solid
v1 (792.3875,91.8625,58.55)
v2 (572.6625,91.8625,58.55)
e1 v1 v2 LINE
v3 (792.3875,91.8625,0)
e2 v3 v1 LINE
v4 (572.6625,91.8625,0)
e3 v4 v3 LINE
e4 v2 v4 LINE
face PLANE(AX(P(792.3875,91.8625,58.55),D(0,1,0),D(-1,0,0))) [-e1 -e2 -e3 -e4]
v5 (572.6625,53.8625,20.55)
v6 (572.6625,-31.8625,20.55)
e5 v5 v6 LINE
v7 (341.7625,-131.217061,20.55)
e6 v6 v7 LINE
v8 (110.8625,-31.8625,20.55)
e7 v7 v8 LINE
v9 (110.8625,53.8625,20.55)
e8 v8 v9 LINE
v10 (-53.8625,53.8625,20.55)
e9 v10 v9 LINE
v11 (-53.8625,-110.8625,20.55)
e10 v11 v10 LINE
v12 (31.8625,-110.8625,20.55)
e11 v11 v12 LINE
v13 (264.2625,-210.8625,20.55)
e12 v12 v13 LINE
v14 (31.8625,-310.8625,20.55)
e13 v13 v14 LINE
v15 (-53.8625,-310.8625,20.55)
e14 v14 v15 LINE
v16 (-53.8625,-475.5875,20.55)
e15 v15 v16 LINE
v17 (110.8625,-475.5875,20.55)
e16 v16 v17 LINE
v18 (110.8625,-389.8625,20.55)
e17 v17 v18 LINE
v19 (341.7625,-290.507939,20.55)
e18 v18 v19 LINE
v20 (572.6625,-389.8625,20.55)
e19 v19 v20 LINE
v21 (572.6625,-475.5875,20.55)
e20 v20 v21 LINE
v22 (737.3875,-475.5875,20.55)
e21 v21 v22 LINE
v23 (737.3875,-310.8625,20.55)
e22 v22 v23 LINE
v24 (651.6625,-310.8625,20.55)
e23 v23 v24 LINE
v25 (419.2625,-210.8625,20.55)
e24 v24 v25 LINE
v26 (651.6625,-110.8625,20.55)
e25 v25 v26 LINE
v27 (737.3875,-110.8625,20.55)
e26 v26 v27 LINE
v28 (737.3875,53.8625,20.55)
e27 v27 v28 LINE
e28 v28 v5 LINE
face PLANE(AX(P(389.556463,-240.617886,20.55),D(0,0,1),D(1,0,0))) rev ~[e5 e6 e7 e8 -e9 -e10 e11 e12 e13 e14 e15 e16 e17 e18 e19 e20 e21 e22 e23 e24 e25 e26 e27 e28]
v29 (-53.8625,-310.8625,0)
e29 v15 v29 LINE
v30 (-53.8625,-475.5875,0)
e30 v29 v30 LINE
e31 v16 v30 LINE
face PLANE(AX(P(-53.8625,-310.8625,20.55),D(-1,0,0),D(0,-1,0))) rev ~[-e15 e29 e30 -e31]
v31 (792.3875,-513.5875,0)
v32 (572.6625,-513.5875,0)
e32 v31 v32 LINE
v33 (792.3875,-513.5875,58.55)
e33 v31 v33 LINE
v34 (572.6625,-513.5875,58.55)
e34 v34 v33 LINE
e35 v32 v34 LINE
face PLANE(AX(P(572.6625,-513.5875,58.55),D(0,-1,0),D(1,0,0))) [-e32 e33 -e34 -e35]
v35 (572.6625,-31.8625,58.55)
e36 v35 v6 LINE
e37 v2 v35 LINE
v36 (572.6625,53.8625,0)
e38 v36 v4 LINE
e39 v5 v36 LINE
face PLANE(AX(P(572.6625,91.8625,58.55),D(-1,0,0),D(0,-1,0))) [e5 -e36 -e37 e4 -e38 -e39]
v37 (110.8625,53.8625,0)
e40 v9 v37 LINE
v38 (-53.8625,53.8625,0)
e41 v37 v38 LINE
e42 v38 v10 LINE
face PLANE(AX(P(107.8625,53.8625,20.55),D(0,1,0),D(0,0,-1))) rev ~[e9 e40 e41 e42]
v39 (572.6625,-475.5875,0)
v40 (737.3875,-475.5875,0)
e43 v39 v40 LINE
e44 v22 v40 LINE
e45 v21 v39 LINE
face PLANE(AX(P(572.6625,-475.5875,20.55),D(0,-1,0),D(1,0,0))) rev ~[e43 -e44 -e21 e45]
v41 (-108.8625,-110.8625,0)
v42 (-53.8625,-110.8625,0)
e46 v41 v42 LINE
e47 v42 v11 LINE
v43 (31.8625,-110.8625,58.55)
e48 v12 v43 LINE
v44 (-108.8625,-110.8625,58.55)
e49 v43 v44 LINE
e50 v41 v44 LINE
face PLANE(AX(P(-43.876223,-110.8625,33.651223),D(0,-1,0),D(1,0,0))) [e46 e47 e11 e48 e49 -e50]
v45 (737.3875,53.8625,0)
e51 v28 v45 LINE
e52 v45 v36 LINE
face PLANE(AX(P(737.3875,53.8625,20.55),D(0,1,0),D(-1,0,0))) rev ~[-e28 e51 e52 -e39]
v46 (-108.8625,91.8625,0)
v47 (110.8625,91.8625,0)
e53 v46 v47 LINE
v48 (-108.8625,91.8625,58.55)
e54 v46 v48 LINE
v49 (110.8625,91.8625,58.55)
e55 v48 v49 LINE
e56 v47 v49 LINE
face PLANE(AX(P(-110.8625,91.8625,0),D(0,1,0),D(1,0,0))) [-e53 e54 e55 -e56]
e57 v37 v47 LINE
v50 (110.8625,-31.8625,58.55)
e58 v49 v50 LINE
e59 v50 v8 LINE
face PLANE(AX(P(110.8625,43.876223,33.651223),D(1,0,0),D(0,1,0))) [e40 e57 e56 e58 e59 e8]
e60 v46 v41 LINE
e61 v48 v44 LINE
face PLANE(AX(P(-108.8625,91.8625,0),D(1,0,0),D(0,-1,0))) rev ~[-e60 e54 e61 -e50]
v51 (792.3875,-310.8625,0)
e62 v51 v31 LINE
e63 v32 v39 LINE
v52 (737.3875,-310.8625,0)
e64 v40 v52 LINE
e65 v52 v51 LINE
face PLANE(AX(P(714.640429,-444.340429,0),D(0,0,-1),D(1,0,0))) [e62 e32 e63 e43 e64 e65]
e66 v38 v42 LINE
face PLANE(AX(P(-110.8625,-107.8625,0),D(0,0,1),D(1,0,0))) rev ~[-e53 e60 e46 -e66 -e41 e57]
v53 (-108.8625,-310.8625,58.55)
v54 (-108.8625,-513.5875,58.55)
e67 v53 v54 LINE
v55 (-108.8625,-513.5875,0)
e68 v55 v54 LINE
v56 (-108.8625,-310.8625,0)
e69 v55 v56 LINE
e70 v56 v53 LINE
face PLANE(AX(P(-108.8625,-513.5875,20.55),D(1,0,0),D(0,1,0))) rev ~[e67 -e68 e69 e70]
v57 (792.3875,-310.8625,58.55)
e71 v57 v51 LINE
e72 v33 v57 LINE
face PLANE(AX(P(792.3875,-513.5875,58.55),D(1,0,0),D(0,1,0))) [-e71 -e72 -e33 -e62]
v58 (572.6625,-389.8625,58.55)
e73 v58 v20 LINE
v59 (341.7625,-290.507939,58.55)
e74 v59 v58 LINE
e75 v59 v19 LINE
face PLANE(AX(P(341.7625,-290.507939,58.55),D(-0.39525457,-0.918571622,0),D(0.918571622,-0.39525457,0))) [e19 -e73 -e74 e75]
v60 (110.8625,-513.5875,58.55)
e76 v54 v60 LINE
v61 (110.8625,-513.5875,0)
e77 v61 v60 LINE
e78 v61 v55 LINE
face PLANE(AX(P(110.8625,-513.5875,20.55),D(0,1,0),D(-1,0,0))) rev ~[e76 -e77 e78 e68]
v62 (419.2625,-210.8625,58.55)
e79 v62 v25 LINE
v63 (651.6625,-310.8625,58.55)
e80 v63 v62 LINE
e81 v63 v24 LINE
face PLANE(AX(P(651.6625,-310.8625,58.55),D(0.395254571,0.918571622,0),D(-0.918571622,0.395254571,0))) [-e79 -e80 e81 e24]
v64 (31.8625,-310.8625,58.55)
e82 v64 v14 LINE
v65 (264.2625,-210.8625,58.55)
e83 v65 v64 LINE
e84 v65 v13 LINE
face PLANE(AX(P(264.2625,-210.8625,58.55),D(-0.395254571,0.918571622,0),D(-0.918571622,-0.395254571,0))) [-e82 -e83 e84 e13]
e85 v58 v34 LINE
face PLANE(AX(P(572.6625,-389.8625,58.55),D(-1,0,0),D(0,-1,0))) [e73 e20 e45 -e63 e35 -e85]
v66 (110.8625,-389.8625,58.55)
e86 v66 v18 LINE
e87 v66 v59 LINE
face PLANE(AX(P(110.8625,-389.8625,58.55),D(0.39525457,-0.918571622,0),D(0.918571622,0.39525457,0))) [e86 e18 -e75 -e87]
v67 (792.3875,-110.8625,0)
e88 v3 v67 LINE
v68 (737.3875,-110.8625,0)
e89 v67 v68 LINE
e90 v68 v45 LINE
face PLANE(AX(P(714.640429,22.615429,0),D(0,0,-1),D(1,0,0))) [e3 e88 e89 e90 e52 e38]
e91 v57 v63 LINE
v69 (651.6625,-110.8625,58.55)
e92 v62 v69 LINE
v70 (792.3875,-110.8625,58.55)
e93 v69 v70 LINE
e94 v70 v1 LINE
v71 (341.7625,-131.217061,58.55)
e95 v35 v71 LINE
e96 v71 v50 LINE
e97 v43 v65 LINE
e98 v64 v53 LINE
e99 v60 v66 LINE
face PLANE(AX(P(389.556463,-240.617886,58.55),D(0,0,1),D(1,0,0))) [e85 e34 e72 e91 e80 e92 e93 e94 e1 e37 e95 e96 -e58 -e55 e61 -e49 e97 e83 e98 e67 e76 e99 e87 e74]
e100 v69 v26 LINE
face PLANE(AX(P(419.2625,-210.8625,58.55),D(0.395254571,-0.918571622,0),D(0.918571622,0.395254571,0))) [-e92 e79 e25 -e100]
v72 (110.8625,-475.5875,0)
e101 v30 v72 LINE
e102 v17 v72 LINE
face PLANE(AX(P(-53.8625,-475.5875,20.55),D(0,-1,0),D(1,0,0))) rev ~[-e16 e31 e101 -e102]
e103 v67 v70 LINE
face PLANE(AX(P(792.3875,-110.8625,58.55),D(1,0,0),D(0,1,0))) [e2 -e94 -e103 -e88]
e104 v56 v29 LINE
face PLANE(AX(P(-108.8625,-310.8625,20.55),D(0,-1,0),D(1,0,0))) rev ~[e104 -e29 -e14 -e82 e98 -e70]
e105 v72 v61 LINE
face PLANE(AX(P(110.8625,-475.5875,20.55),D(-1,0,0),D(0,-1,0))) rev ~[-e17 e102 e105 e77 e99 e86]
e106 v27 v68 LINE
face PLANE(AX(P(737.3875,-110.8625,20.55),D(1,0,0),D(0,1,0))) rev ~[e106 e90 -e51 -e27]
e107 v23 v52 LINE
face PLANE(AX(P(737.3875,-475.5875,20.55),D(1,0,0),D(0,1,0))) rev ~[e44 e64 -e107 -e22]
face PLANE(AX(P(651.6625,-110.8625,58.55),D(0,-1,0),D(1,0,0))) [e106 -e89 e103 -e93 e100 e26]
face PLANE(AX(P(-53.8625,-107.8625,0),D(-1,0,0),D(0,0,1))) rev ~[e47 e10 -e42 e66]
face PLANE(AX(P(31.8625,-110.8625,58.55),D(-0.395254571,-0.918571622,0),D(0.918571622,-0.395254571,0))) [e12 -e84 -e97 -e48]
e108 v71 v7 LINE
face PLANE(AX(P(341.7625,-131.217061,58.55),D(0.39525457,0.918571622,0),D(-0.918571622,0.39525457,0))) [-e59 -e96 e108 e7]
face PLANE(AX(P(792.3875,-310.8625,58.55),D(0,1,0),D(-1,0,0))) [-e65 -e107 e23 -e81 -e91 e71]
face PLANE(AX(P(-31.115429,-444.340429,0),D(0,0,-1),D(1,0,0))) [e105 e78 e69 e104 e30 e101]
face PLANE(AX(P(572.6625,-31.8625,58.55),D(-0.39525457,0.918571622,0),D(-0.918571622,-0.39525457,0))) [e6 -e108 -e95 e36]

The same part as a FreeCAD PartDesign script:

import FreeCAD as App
import Part
import Sketcher

doc = App.newDocument("Part")
body = doc.addObject("PartDesign::Body", "Body")

# Sketch on XY plane
sketch1 = doc.addObject("Sketcher::SketchObject", "Sketch")
body.addObject(sketch1)
sketch1.AttachmentSupport = (doc.XY_Plane, [""])
sketch1.MapMode = "FlatFace"
sketch1.addGeometry(Part.LineSegment(App.Vector(-54, 54, 0), App.Vector(108, 54, 0)), False)
sketch1.addGeometry(Part.LineSegment(App.Vector(108, 54, 0), App.Vector(108, 108, 0)), False)
sketch1.addGeometry(Part.LineSegment(App.Vector(108, 108, 0), App.Vector(-108, 108, 0)), False)
sketch1.addGeometry(Part.LineSegment(App.Vector(-108, 108, 0), App.Vector(-108, -108, 0)), False)
sketch1.addGeometry(Part.LineSegment(App.Vector(-108, -108, 0), App.Vector(-54, -108, 0)), False)
sketch1.addGeometry(Part.LineSegment(App.Vector(-54, -108, 0), App.Vector(-54, 54, 0)), False)
sketch1.addConstraint(Sketcher.Constraint("Coincident", 0, 2, 1, 1))
sketch1.addConstraint(Sketcher.Constraint("Coincident", 1, 2, 2, 1))
sketch1.addConstraint(Sketcher.Constraint("Coincident", 2, 2, 3, 1))
sketch1.addConstraint(Sketcher.Constraint("Coincident", 3, 2, 4, 1))
sketch1.addConstraint(Sketcher.Constraint("Coincident", 4, 2, 5, 1))
sketch1.addConstraint(Sketcher.Constraint("Coincident", 5, 2, 0, 1))
sketch1.addConstraint(Sketcher.Constraint("Horizontal", 0))
sketch1.addConstraint(Sketcher.Constraint("Vertical", 1))
sketch1.addConstraint(Sketcher.Constraint("Horizontal", 2))
sketch1.addConstraint(Sketcher.Constraint("Vertical", 3))
sketch1.addConstraint(Sketcher.Constraint("Horizontal", 4))
sketch1.addConstraint(Sketcher.Constraint("Vertical", 5))
sketch1.addConstraint(Sketcher.Constraint("Symmetric", 1, 2, 3, 2, -1, 1))
sketch1.addConstraint(Sketcher.Constraint("Equal", 4, 1))
sketch1.addConstraint(Sketcher.Constraint("Equal", 2, 3))
sketch1.addConstraint(Sketcher.Constraint("DistanceX", 4, 1, 4, 2, 54.0))
sketch1.addConstraint(Sketcher.Constraint("DistanceX", 0, 1, 0, 2, 161.725))
pad1 = doc.addObject("PartDesign::Pad", "Pad")
body.addObject(pad1)
pad1.Profile = sketch1
pad1.Length = 20.55

# Sketch on XY plane
sketch2 = doc.addObject("Sketcher::SketchObject", "Sketch001")
body.addObject(sketch2)
sketch2.AttachmentSupport = (doc.XY_Plane, [""])
sketch2.MapMode = "FlatFace"
sketch2.AttachmentOffset = App.Placement(App.Vector(0, 0, 20.55), App.Rotation())
sketch2.addGeometry(Part.LineSegment(App.Vector(-108, 108, 0), App.Vector(-108, -108, 0)), False)
sketch2.addGeometry(Part.LineSegment(App.Vector(-108, -108, 0), App.Vector(108, -108, 0)), False)
sketch2.addGeometry(Part.LineSegment(App.Vector(108, -108, 0), App.Vector(108, 108, 0)), False)
sketch2.addGeometry(Part.LineSegment(App.Vector(108, 108, 0), App.Vector(-108, 108, 0)), False)
sketch2.addConstraint(Sketcher.Constraint("Coincident", 0, 2, 1, 1))
sketch2.addConstraint(Sketcher.Constraint("Coincident", 1, 2, 2, 1))
sketch2.addConstraint(Sketcher.Constraint("Coincident", 2, 2, 3, 1))
sketch2.addConstraint(Sketcher.Constraint("Coincident", 3, 2, 0, 1))
sketch2.addConstraint(Sketcher.Constraint("Vertical", 0))
sketch2.addConstraint(Sketcher.Constraint("Horizontal", 1))
sketch2.addConstraint(Sketcher.Constraint("Vertical", 2))
sketch2.addConstraint(Sketcher.Constraint("Horizontal", 3))
sketch2.addConstraint(Sketcher.Constraint("Symmetric", 0, 2, 2, 2, -1, 1))
sketch2.addConstraint(Sketcher.Constraint("Equal", 3, 0))
sketch2.addConstraint(Sketcher.Constraint("DistanceX", 1, 1, 1, 2, 215.725))
pad2 = doc.addObject("PartDesign::Pad", "Pad001")
body.addObject(pad2)
pad2.Profile = sketch2
pad2.Length = 38

# Sketch on XY plane
sketch3 = doc.addObject("Sketcher::SketchObject", "Sketch002")
body.addObject(sketch3)
sketch3.AttachmentSupport = (doc.XY_Plane, [""])
sketch3.MapMode = "FlatFace"
sketch3.AttachmentOffset = App.Placement(App.Vector(0, 0, 58.55), App.Rotation())
sketch3.addGeometry(Part.LineSegment(App.Vector(-110.9, -107.9, 0), App.Vector(-107.9, -107.9, 0)), False)
sketch3.addGeometry(Part.LineSegment(App.Vector(-107.9, -107.9, 0), App.Vector(-107.9, 107.9, 0)), False)
sketch3.addGeometry(Part.LineSegment(App.Vector(-107.9, 107.9, 0), App.Vector(107.9, 107.9, 0)), False)
sketch3.addGeometry(Part.LineSegment(App.Vector(107.9, 107.9, 0), App.Vector(107.9, 110.9, 0)), False)
sketch3.addGeometry(Part.LineSegment(App.Vector(107.9, 110.9, 0), App.Vector(-110.9, 110.9, 0)), False)
sketch3.addGeometry(Part.LineSegment(App.Vector(-110.9, 110.9, 0), App.Vector(-110.9, -107.9, 0)), False)
sketch3.addConstraint(Sketcher.Constraint("Coincident", 0, 2, 1, 1))
sketch3.addConstraint(Sketcher.Constraint("Coincident", 1, 2, 2, 1))
sketch3.addConstraint(Sketcher.Constraint("Coincident", 2, 2, 3, 1))
sketch3.addConstraint(Sketcher.Constraint("Coincident", 3, 2, 4, 1))
sketch3.addConstraint(Sketcher.Constraint("Coincident", 4, 2, 5, 1))
sketch3.addConstraint(Sketcher.Constraint("Coincident", 5, 2, 0, 1))
sketch3.addConstraint(Sketcher.Constraint("Horizontal", 0))
sketch3.addConstraint(Sketcher.Constraint("Vertical", 1))
sketch3.addConstraint(Sketcher.Constraint("Horizontal", 2))
sketch3.addConstraint(Sketcher.Constraint("Vertical", 3))
sketch3.addConstraint(Sketcher.Constraint("Horizontal", 4))
sketch3.addConstraint(Sketcher.Constraint("Vertical", 5))
sketch3.addConstraint(Sketcher.Constraint("Symmetric", 0, 2, 2, 2, -1, 1))
sketch3.addConstraint(Sketcher.Constraint("Equal", 2, 1))
sketch3.addConstraint(Sketcher.Constraint("Equal", 0, 3))
sketch3.addConstraint(Sketcher.Constraint("DistanceX", 0, 1, 0, 2, 3.0))
sketch3.addConstraint(Sketcher.Constraint("DistanceX", 2, 1, 2, 2, 215.725))
pad3 = doc.addObject("PartDesign::Pad", "Pad002")
body.addObject(pad3)
pad3.Profile = sketch3
pad3.Type = "UpToLast"
pad3.Reversed = True

# Sketch on XY plane
sketch4 = doc.addObject("Sketcher::SketchObject", "Sketch003")
body.addObject(sketch4)
sketch4.AttachmentSupport = (doc.XY_Plane, [""])
sketch4.MapMode = "FlatFace"
sketch4.AttachmentOffset = App.Placement(App.Vector(0, 0, 20.55), App.Rotation())
sketch4.addGeometry(Part.LineSegment(App.Vector(32, -108, 0), App.Vector(32, -32, 0)), False)
sketch4.addGeometry(Part.LineSegment(App.Vector(32, -32, 0), App.Vector(108, -32, 0)), False)
sketch4.addGeometry(Part.LineSegment(App.Vector(108, -32, 0), App.Vector(108, -108, 0)), False)
sketch4.addGeometry(Part.LineSegment(App.Vector(108, -108, 0), App.Vector(32, -108, 0)), False)
sketch4.addConstraint(Sketcher.Constraint("Coincident", 0, 2, 1, 1))
sketch4.addConstraint(Sketcher.Constraint("Coincident", 1, 2, 2, 1))
sketch4.addConstraint(Sketcher.Constraint("Coincident", 2, 2, 3, 1))
sketch4.addConstraint(Sketcher.Constraint("Coincident", 3, 2, 0, 1))
sketch4.addConstraint(Sketcher.Constraint("Vertical", 0))
sketch4.addConstraint(Sketcher.Constraint("Horizontal", 1))
sketch4.addConstraint(Sketcher.Constraint("Vertical", 2))
sketch4.addConstraint(Sketcher.Constraint("Horizontal", 3))
sketch4.addConstraint(Sketcher.Constraint("Equal", 3, 0))
sketch4.addConstraint(Sketcher.Constraint("DistanceX", 1, 1, 1, 2, 76.0))
sketch4.addConstraint(Sketcher.Constraint("DistanceX", -1, 1, 0, 2, 31.8625))
sketch4.addConstraint(Sketcher.Constraint("DistanceY", 0, 2, -1, 1, 31.8625))
pocket1 = doc.addObject("PartDesign::Pocket", "Pocket")
body.addObject(pocket1)
pocket1.Profile = sketch4
pocket1.Type = "ThroughAll"
pocket1.Reversed = True

# Sketch on YZ plane
sketch5 = doc.addObject("Sketcher::SketchObject", "Sketch004")
body.addObject(sketch5)
sketch5.AttachmentSupport = (doc.YZ_Plane, [""])
sketch5.MapMode = "FlatFace"
sketch5.AttachmentOffset = App.Placement(App.Vector(0, 0, 107.8625), App.Rotation())
sketch5.addGeometry(Part.LineSegment(App.Vector(111, 59, 0), App.Vector(-32, 59, 0)), False)
sketch5.addGeometry(Part.LineSegment(App.Vector(-32, 59, 0), App.Vector(-32, 21, 0)), False)
sketch5.addGeometry(Part.LineSegment(App.Vector(-32, 21, 0), App.Vector(54, 21, 0)), False)
sketch5.addGeometry(Part.LineSegment(App.Vector(54, 21, 0), App.Vector(54, 0, 0)), False)
sketch5.addGeometry(Part.LineSegment(App.Vector(54, 0, 0), App.Vector(111, 0, 0)), False)
sketch5.addGeometry(Part.LineSegment(App.Vector(111, 0, 0), App.Vector(111, 59, 0)), False)
sketch5.addConstraint(Sketcher.Constraint("Coincident", 0, 2, 1, 1))
sketch5.addConstraint(Sketcher.Constraint("Coincident", 1, 2, 2, 1))
sketch5.addConstraint(Sketcher.Constraint("Coincident", 2, 2, 3, 1))
sketch5.addConstraint(Sketcher.Constraint("Coincident", 3, 2, 4, 1))
sketch5.addConstraint(Sketcher.Constraint("Coincident", 4, 2, 5, 1))
sketch5.addConstraint(Sketcher.Constraint("Coincident", 5, 2, 0, 1))
sketch5.addConstraint(Sketcher.Constraint("Horizontal", 0))
sketch5.addConstraint(Sketcher.Constraint("Vertical", 1))
sketch5.addConstraint(Sketcher.Constraint("Horizontal", 2))
sketch5.addConstraint(Sketcher.Constraint("Vertical", 3))
sketch5.addConstraint(Sketcher.Constraint("Horizontal", 4))
sketch5.addConstraint(Sketcher.Constraint("Vertical", 5))
sketch5.addConstraint(Sketcher.Constraint("PointOnObject", 3, 2, -1))
sketch5.addConstraint(Sketcher.Constraint("DistanceX", 4, 1, 4, 2, 57.0))
sketch5.addConstraint(Sketcher.Constraint("DistanceY", 1, 2, 1, 1, 38.0))
sketch5.addConstraint(Sketcher.Constraint("DistanceY", 3, 2, 3, 1, 20.55))
sketch5.addConstraint(Sketcher.Constraint("DistanceX", 0, 2, 0, 1, 142.725))
sketch5.addConstraint(Sketcher.Constraint("DistanceX", 0, 2, -1, 1, 31.8625))
pad4 = doc.addObject("PartDesign::Pad", "Pad003")
body.addObject(pad4)
pad4.Profile = sketch5
pad4.Length = 3

# Sketch on XZ plane
sketch6 = doc.addObject("Sketcher::SketchObject", "Sketch005")
body.addObject(sketch6)
sketch6.AttachmentSupport = (doc.XZ_Plane, [""])
sketch6.MapMode = "FlatFace"
sketch6.AttachmentOffset = App.Placement(App.Vector(0, 0, 107.8625), App.Rotation())
sketch6.addGeometry(Part.LineSegment(App.Vector(32, 59, 0), App.Vector(-111, 59, 0)), False)
sketch6.addGeometry(Part.LineSegment(App.Vector(-111, 59, 0), App.Vector(-111, 0, 0)), False)
sketch6.addGeometry(Part.LineSegment(App.Vector(-111, 0, 0), App.Vector(-54, 0, 0)), False)
sketch6.addGeometry(Part.LineSegment(App.Vector(-54, 0, 0), App.Vector(-54, 21, 0)), False)
sketch6.addGeometry(Part.LineSegment(App.Vector(-54, 21, 0), App.Vector(32, 21, 0)), False)
sketch6.addGeometry(Part.LineSegment(App.Vector(32, 21, 0), App.Vector(32, 59, 0)), False)
sketch6.addConstraint(Sketcher.Constraint("Coincident", 0, 2, 1, 1))
sketch6.addConstraint(Sketcher.Constraint("Coincident", 1, 2, 2, 1))
sketch6.addConstraint(Sketcher.Constraint("Coincident", 2, 2, 3, 1))
sketch6.addConstraint(Sketcher.Constraint("Coincident", 3, 2, 4, 1))
sketch6.addConstraint(Sketcher.Constraint("Coincident", 4, 2, 5, 1))
sketch6.addConstraint(Sketcher.Constraint("Coincident", 5, 2, 0, 1))
sketch6.addConstraint(Sketcher.Constraint("Horizontal", 0))
sketch6.addConstraint(Sketcher.Constraint("Vertical", 1))
sketch6.addConstraint(Sketcher.Constraint("Horizontal", 2))
sketch6.addConstraint(Sketcher.Constraint("Vertical", 3))
sketch6.addConstraint(Sketcher.Constraint("Horizontal", 4))
sketch6.addConstraint(Sketcher.Constraint("Vertical", 5))
sketch6.addConstraint(Sketcher.Constraint("PointOnObject", 1, 2, -1))
sketch6.addConstraint(Sketcher.Constraint("DistanceX", 2, 1, 2, 2, 57.0))
sketch6.addConstraint(Sketcher.Constraint("DistanceY", 5, 1, 5, 2, 38.0))
sketch6.addConstraint(Sketcher.Constraint("DistanceY", 1, 2, 1, 1, 58.55))
sketch6.addConstraint(Sketcher.Constraint("DistanceX", 0, 2, 0, 1, 142.725))
sketch6.addConstraint(Sketcher.Constraint("DistanceX", 0, 2, -1, 1, 110.8625))
pad5 = doc.addObject("PartDesign::Pad", "Pad004")
body.addObject(pad5)
pad5.Profile = sketch6
pad5.Length = 3

# Sketch on XY plane
sketch7 = doc.addObject("Sketcher::SketchObject", "Sketch006")
body.addObject(sketch7)
sketch7.AttachmentSupport = (doc.XY_Plane, [""])
sketch7.MapMode = "FlatFace"
sketch7.addGeometry(Part.LineSegment(App.Vector(-111, 92, 0), App.Vector(-111, 111, 0)), False)
sketch7.addGeometry(Part.LineSegment(App.Vector(-111, 111, 0), App.Vector(111, 111, 0)), False)
sketch7.addGeometry(Part.LineSegment(App.Vector(111, 111, 0), App.Vector(111, 92, 0)), False)
sketch7.addGeometry(Part.LineSegment(App.Vector(111, 92, 0), App.Vector(-111, 92, 0)), False)
sketch7.addConstraint(Sketcher.Constraint("Coincident", 0, 2, 1, 1))
sketch7.addConstraint(Sketcher.Constraint("Coincident", 1, 2, 2, 1))
sketch7.addConstraint(Sketcher.Constraint("Coincident", 2, 2, 3, 1))
sketch7.addConstraint(Sketcher.Constraint("Coincident", 3, 2, 0, 1))
sketch7.addConstraint(Sketcher.Constraint("Vertical", 0))
sketch7.addConstraint(Sketcher.Constraint("Horizontal", 1))
sketch7.addConstraint(Sketcher.Constraint("Vertical", 2))
sketch7.addConstraint(Sketcher.Constraint("Horizontal", 3))
sketch7.addConstraint(Sketcher.Constraint("DistanceY", 0, 1, 0, 2, 19.0))
sketch7.addConstraint(Sketcher.Constraint("DistanceX", 1, 1, 1, 2, 221.725))
sketch7.addConstraint(Sketcher.Constraint("DistanceX", 0, 2, -1, 1, 110.8625))
sketch7.addConstraint(Sketcher.Constraint("DistanceY", -1, 1, 0, 2, 110.8625))
pocket2 = doc.addObject("PartDesign::Pocket", "Pocket001")
body.addObject(pocket2)
pocket2.Profile = sketch7
pocket2.Type = "ThroughAll"
pocket2.Reversed = True

# Sketch on XY plane
sketch8 = doc.addObject("Sketcher::SketchObject", "Sketch007")
body.addObject(sketch8)
sketch8.AttachmentSupport = (doc.XY_Plane, [""])
sketch8.MapMode = "FlatFace"
sketch8.addGeometry(Part.LineSegment(App.Vector(-110.9, -110.9, 0), App.Vector(-110.9, 91.9, 0)), False)
sketch8.addGeometry(Part.LineSegment(App.Vector(-110.9, 91.9, 0), App.Vector(-108.9, 91.9, 0)), False)
sketch8.addGeometry(Part.LineSegment(App.Vector(-108.9, 91.9, 0), App.Vector(-108.9, -110.9, 0)), False)
sketch8.addGeometry(Part.LineSegment(App.Vector(-108.9, -110.9, 0), App.Vector(-110.9, -110.9, 0)), False)
sketch8.addConstraint(Sketcher.Constraint("Coincident", 0, 2, 1, 1))
sketch8.addConstraint(Sketcher.Constraint("Coincident", 1, 2, 2, 1))
sketch8.addConstraint(Sketcher.Constraint("Coincident", 2, 2, 3, 1))
sketch8.addConstraint(Sketcher.Constraint("Coincident", 3, 2, 0, 1))
sketch8.addConstraint(Sketcher.Constraint("Vertical", 0))
sketch8.addConstraint(Sketcher.Constraint("Horizontal", 1))
sketch8.addConstraint(Sketcher.Constraint("Vertical", 2))
sketch8.addConstraint(Sketcher.Constraint("Horizontal", 3))
sketch8.addConstraint(Sketcher.Constraint("DistanceX", 1, 1, 1, 2, 2.0))
sketch8.addConstraint(Sketcher.Constraint("DistanceY", 0, 1, 0, 2, 202.725))
sketch8.addConstraint(Sketcher.Constraint("DistanceX", 0, 2, -1, 1, 110.8625))
sketch8.addConstraint(Sketcher.Constraint("DistanceY", -1, 1, 0, 2, 91.8625))
pocket3 = doc.addObject("PartDesign::Pocket", "Pocket002")
body.addObject(pocket3)
pocket3.Profile = sketch8
pocket3.Type = "ThroughAll"
pocket3.Reversed = True

# Sketch on XY plane
sketch9 = doc.addObject("Sketcher::SketchObject", "Sketch008")
body.addObject(sketch9)
sketch9.AttachmentSupport = (doc.XY_Plane, [""])
sketch9.MapMode = "FlatFace"
sketch9.AttachmentOffset = App.Placement(App.Vector(0, 0, 58.55), App.Rotation())
sketch9.addGeometry(Part.LineSegment(App.Vector(111, -32, 0), App.Vector(32, -32, 0)), False)
sketch9.addGeometry(Part.LineSegment(App.Vector(32, -32, 0), App.Vector(32, -111, 0)), False)
sketch9.addGeometry(Part.LineSegment(App.Vector(32, -111, 0), App.Vector(264, -211, 0)), False)
sketch9.addGeometry(Part.LineSegment(App.Vector(264, -211, 0), App.Vector(32, -311, 0)), False)
sketch9.addGeometry(Part.LineSegment(App.Vector(32, -311, 0), App.Vector(-109, -311, 0)), False)
sketch9.addGeometry(Part.LineSegment(App.Vector(-109, -311, 0), App.Vector(-109, -514, 0)), False)
sketch9.addGeometry(Part.LineSegment(App.Vector(-109, -514, 0), App.Vector(111, -514, 0)), False)
sketch9.addGeometry(Part.LineSegment(App.Vector(111, -514, 0), App.Vector(111, -390, 0)), False)
sketch9.addGeometry(Part.LineSegment(App.Vector(111, -390, 0), App.Vector(342, -291, 0)), False)
sketch9.addGeometry(Part.LineSegment(App.Vector(342, -291, 0), App.Vector(573, -390, 0)), False)
sketch9.addGeometry(Part.LineSegment(App.Vector(573, -390, 0), App.Vector(573, -514, 0)), False)
sketch9.addGeometry(Part.LineSegment(App.Vector(573, -514, 0), App.Vector(792, -514, 0)), False)
sketch9.addGeometry(Part.LineSegment(App.Vector(792, -514, 0), App.Vector(792, -311, 0)), False)
sketch9.addGeometry(Part.LineSegment(App.Vector(792, -311, 0), App.Vector(652, -311, 0)), False)
sketch9.addGeometry(Part.LineSegment(App.Vector(652, -311, 0), App.Vector(419, -211, 0)), False)
sketch9.addGeometry(Part.LineSegment(App.Vector(419, -211, 0), App.Vector(652, -111, 0)), False)
sketch9.addGeometry(Part.LineSegment(App.Vector(652, -111, 0), App.Vector(792, -111, 0)), False)
sketch9.addGeometry(Part.LineSegment(App.Vector(792, -111, 0), App.Vector(792, 92, 0)), False)
sketch9.addGeometry(Part.LineSegment(App.Vector(792, 92, 0), App.Vector(573, 92, 0)), False)
sketch9.addGeometry(Part.LineSegment(App.Vector(573, 92, 0), App.Vector(573, -32, 0)), False)
sketch9.addGeometry(Part.LineSegment(App.Vector(573, -32, 0), App.Vector(342, -131, 0)), False)
sketch9.addGeometry(Part.LineSegment(App.Vector(342, -131, 0), App.Vector(111, -32, 0)), False)
sketch9.addConstraint(Sketcher.Constraint("Coincident", 0, 2, 1, 1))
sketch9.addConstraint(Sketcher.Constraint("Coincident", 1, 2, 2, 1))
sketch9.addConstraint(Sketcher.Constraint("Coincident", 2, 2, 3, 1))
sketch9.addConstraint(Sketcher.Constraint("Coincident", 3, 2, 4, 1))
sketch9.addConstraint(Sketcher.Constraint("Coincident", 4, 2, 5, 1))
sketch9.addConstraint(Sketcher.Constraint("Coincident", 5, 2, 6, 1))
sketch9.addConstraint(Sketcher.Constraint("Coincident", 6, 2, 7, 1))
sketch9.addConstraint(Sketcher.Constraint("Coincident", 7, 2, 8, 1))
sketch9.addConstraint(Sketcher.Constraint("Coincident", 8, 2, 9, 1))
sketch9.addConstraint(Sketcher.Constraint("Coincident", 9, 2, 10, 1))
sketch9.addConstraint(Sketcher.Constraint("Coincident", 10, 2, 11, 1))
sketch9.addConstraint(Sketcher.Constraint("Coincident", 11, 2, 12, 1))
sketch9.addConstraint(Sketcher.Constraint("Coincident", 12, 2, 13, 1))
sketch9.addConstraint(Sketcher.Constraint("Coincident", 13, 2, 14, 1))
sketch9.addConstraint(Sketcher.Constraint("Coincident", 14, 2, 15, 1))
sketch9.addConstraint(Sketcher.Constraint("Coincident", 15, 2, 16, 1))
sketch9.addConstraint(Sketcher.Constraint("Coincident", 16, 2, 17, 1))
sketch9.addConstraint(Sketcher.Constraint("Coincident", 17, 2, 18, 1))
sketch9.addConstraint(Sketcher.Constraint("Coincident", 18, 2, 19, 1))
sketch9.addConstraint(Sketcher.Constraint("Coincident", 19, 2, 20, 1))
sketch9.addConstraint(Sketcher.Constraint("Coincident", 20, 2, 21, 1))
sketch9.addConstraint(Sketcher.Constraint("Coincident", 21, 2, 0, 1))
sketch9.addConstraint(Sketcher.Constraint("Horizontal", 0))
sketch9.addConstraint(Sketcher.Constraint("Vertical", 1))
sketch9.addConstraint(Sketcher.Constraint("Horizontal", 4))
sketch9.addConstraint(Sketcher.Constraint("Vertical", 5))
sketch9.addConstraint(Sketcher.Constraint("Horizontal", 6))
sketch9.addConstraint(Sketcher.Constraint("Vertical", 7))
sketch9.addConstraint(Sketcher.Constraint("Vertical", 10))
sketch9.addConstraint(Sketcher.Constraint("Horizontal", 11))
sketch9.addConstraint(Sketcher.Constraint("Vertical", 12))
sketch9.addConstraint(Sketcher.Constraint("Horizontal", 13))
sketch9.addConstraint(Sketcher.Constraint("Horizontal", 16))
sketch9.addConstraint(Sketcher.Constraint("Vertical", 17))
sketch9.addConstraint(Sketcher.Constraint("Horizontal", 18))
sketch9.addConstraint(Sketcher.Constraint("Vertical", 19))
sketch9.addConstraint(Sketcher.Constraint("Parallel", 3, 8))
sketch9.addConstraint(Sketcher.Constraint("Parallel", 2, 9))
sketch9.addConstraint(Sketcher.Constraint("Parallel", 9, 14))
sketch9.addConstraint(Sketcher.Constraint("Parallel", 8, 15))
sketch9.addConstraint(Sketcher.Constraint("Parallel", 15, 20))
sketch9.addConstraint(Sketcher.Constraint("Parallel", 14, 21))
sketch9.addConstraint(Sketcher.Constraint("Horizontal", 7, 2, 9, 2))
sketch9.addConstraint(Sketcher.Constraint("Horizontal", 6, 2, 10, 2))
sketch9.addConstraint(Sketcher.Constraint("Horizontal", 4, 2, 12, 2))
sketch9.addConstraint(Sketcher.Constraint("Horizontal", 2, 2, 14, 2))
sketch9.addConstraint(Sketcher.Constraint("Horizontal", 1, 2, 15, 2))
sketch9.addConstraint(Sketcher.Constraint("Horizontal", 0, 2, 19, 2))
sketch9.addConstraint(Sketcher.Constraint("Vertical", 1, 2, 3, 2))
sketch9.addConstraint(Sketcher.Constraint("Vertical", 13, 2, 15, 2))
sketch9.addConstraint(Sketcher.Constraint("Vertical", 12, 2, 16, 2))
sketch9.addConstraint(Sketcher.Constraint("Vertical", 10, 2, 18, 2))
sketch9.addConstraint(Sketcher.Constraint("Vertical", 8, 2, 20, 2))
sketch9.addConstraint(Sketcher.Constraint("Equal", 6, 11))
sketch9.addConstraint(Sketcher.Constraint("Equal", 4, 13))
sketch9.addConstraint(Sketcher.Constraint("Equal", 0, 1))
sketch9.addConstraint(Sketcher.Constraint("Equal", 12, 17))
sketch9.addConstraint(Sketcher.Constraint("Equal", 10, 19))
sketch9.addConstraint(Sketcher.Constraint("DistanceX", 0, 2, 0, 1, 79.0))
sketch9.addConstraint(Sketcher.Constraint("DistanceY", 2, 2, 1, 2, 100.0))
sketch9.addConstraint(Sketcher.Constraint("DistanceX", 2, 2, 14, 2, 155.0))
sketch9.addConstraint(Sketcher.Constraint("DistanceX", 1, 2, 2, 2, 232.4))
sketch9.addConstraint(Sketcher.Constraint("DistanceX", 4, 2, 4, 1, 140.725))
sketch9.addConstraint(Sketcher.Constraint("DistanceY", 5, 2, 5, 1, 202.725))
sketch9.addConstraint(Sketcher.Constraint("DistanceX", -1, 1, 0, 2, 31.8625))
sketch9.addConstraint(Sketcher.Constraint("DistanceY", 0, 2, -1, 1, 31.8625))
pad6 = doc.addObject("PartDesign::Pad", "Pad005")
body.addObject(pad6)
pad6.Profile = sketch9
pad6.Length = 38
pad6.Reversed = True

# Sketch on XY plane
sketch10 = doc.addObject("Sketcher::SketchObject", "Sketch009")
body.addObject(sketch10)
sketch10.AttachmentSupport = (doc.XY_Plane, [""])
sketch10.MapMode = "FlatFace"
sketch10.AttachmentOffset = App.Placement(App.Vector(0, 0, 20.55), App.Rotation())
sketch10.addGeometry(Part.LineSegment(App.Vector(-109, -311, 0), App.Vector(-54, -311, 0)), False)
sketch10.addGeometry(Part.LineSegment(App.Vector(-54, -311, 0), App.Vector(-54, -476, 0)), False)
sketch10.addGeometry(Part.LineSegment(App.Vector(-54, -476, 0), App.Vector(111, -476, 0)), False)
sketch10.addGeometry(Part.LineSegment(App.Vector(111, -476, 0), App.Vector(111, -514, 0)), False)
sketch10.addGeometry(Part.LineSegment(App.Vector(111, -514, 0), App.Vector(-109, -514, 0)), False)
sketch10.addGeometry(Part.LineSegment(App.Vector(-109, -514, 0), App.Vector(-109, -311, 0)), False)
sketch10.addGeometry(Part.LineSegment(App.Vector(737, -476, 0), App.Vector(737, -311, 0)), False)
sketch10.addGeometry(Part.LineSegment(App.Vector(737, -311, 0), App.Vector(792, -311, 0)), False)
sketch10.addGeometry(Part.LineSegment(App.Vector(792, -311, 0), App.Vector(792, -514, 0)), False)
sketch10.addGeometry(Part.LineSegment(App.Vector(792, -514, 0), App.Vector(573, -514, 0)), False)
sketch10.addGeometry(Part.LineSegment(App.Vector(573, -514, 0), App.Vector(573, -476, 0)), False)
sketch10.addGeometry(Part.LineSegment(App.Vector(573, -476, 0), App.Vector(737, -476, 0)), False)
sketch10.addGeometry(Part.LineSegment(App.Vector(737, 54, 0), App.Vector(573, 54, 0)), False)
sketch10.addGeometry(Part.LineSegment(App.Vector(573, 54, 0), App.Vector(573, 92, 0)), False)
sketch10.addGeometry(Part.LineSegment(App.Vector(573, 92, 0), App.Vector(792, 92, 0)), False)
sketch10.addGeometry(Part.LineSegment(App.Vector(792, 92, 0), App.Vector(792, -111, 0)), False)
sketch10.addGeometry(Part.LineSegment(App.Vector(792, -111, 0), App.Vector(737, -111, 0)), False)
sketch10.addGeometry(Part.LineSegment(App.Vector(737, -111, 0), App.Vector(737, 54, 0)), False)
sketch10.addConstraint(Sketcher.Constraint("Coincident", 0, 2, 1, 1))
sketch10.addConstraint(Sketcher.Constraint("Coincident", 1, 2, 2, 1))
sketch10.addConstraint(Sketcher.Constraint("Coincident", 2, 2, 3, 1))
sketch10.addConstraint(Sketcher.Constraint("Coincident", 3, 2, 4, 1))
sketch10.addConstraint(Sketcher.Constraint("Coincident", 4, 2, 5, 1))
sketch10.addConstraint(Sketcher.Constraint("Coincident", 5, 2, 0, 1))
sketch10.addConstraint(Sketcher.Constraint("Coincident", 6, 2, 7, 1))
sketch10.addConstraint(Sketcher.Constraint("Coincident", 7, 2, 8, 1))
sketch10.addConstraint(Sketcher.Constraint("Coincident", 8, 2, 9, 1))
sketch10.addConstraint(Sketcher.Constraint("Coincident", 9, 2, 10, 1))
sketch10.addConstraint(Sketcher.Constraint("Coincident", 10, 2, 11, 1))
sketch10.addConstraint(Sketcher.Constraint("Coincident", 11, 2, 6, 1))
sketch10.addConstraint(Sketcher.Constraint("Coincident", 12, 2, 13, 1))
sketch10.addConstraint(Sketcher.Constraint("Coincident", 13, 2, 14, 1))
sketch10.addConstraint(Sketcher.Constraint("Coincident", 14, 2, 15, 1))
sketch10.addConstraint(Sketcher.Constraint("Coincident", 15, 2, 16, 1))
sketch10.addConstraint(Sketcher.Constraint("Coincident", 16, 2, 17, 1))
sketch10.addConstraint(Sketcher.Constraint("Coincident", 17, 2, 12, 1))
sketch10.addConstraint(Sketcher.Constraint("Horizontal", 0))
sketch10.addConstraint(Sketcher.Constraint("Vertical", 1))
sketch10.addConstraint(Sketcher.Constraint("Horizontal", 2))
sketch10.addConstraint(Sketcher.Constraint("Vertical", 3))
sketch10.addConstraint(Sketcher.Constraint("Horizontal", 4))
sketch10.addConstraint(Sketcher.Constraint("Vertical", 5))
sketch10.addConstraint(Sketcher.Constraint("Vertical", 6))
sketch10.addConstraint(Sketcher.Constraint("Horizontal", 7))
sketch10.addConstraint(Sketcher.Constraint("Vertical", 8))
sketch10.addConstraint(Sketcher.Constraint("Horizontal", 9))
sketch10.addConstraint(Sketcher.Constraint("Vertical", 10))
sketch10.addConstraint(Sketcher.Constraint("Horizontal", 11))
sketch10.addConstraint(Sketcher.Constraint("Horizontal", 12))
sketch10.addConstraint(Sketcher.Constraint("Vertical", 13))
sketch10.addConstraint(Sketcher.Constraint("Horizontal", 14))
sketch10.addConstraint(Sketcher.Constraint("Vertical", 15))
sketch10.addConstraint(Sketcher.Constraint("Horizontal", 16))
sketch10.addConstraint(Sketcher.Constraint("Vertical", 17))
sketch10.addConstraint(Sketcher.Constraint("Horizontal", 5, 2, 6, 2))
sketch10.addConstraint(Sketcher.Constraint("Horizontal", 4, 2, 8, 2))
sketch10.addConstraint(Sketcher.Constraint("Horizontal", 2, 2, 10, 2))
sketch10.addConstraint(Sketcher.Constraint("Vertical", 10, 2, 12, 2))
sketch10.addConstraint(Sketcher.Constraint("Vertical", 8, 2, 14, 2))
sketch10.addConstraint(Sketcher.Constraint("Vertical", 11, 2, 16, 2))
sketch10.addConstraint(Sketcher.Constraint("Equal", 0, 7))
sketch10.addConstraint(Sketcher.Constraint("Equal", 4, 9))
sketch10.addConstraint(Sketcher.Constraint("Equal", 12, 1))
sketch10.addConstraint(Sketcher.Constraint("Equal", 10, 13))
sketch10.addConstraint(Sketcher.Constraint("Equal", 8, 15))
sketch10.addConstraint(Sketcher.Constraint("DistanceX", 0, 1, 0, 2, 55.0))
sketch10.addConstraint(Sketcher.Constraint("DistanceY", 3, 2, 3, 1, 38.0))
sketch10.addConstraint(Sketcher.Constraint("DistanceY", 7, 2, 15, 2, 200.0))
sketch10.addConstraint(Sketcher.Constraint("DistanceX", 3, 2, 9, 2, 461.8))
sketch10.addConstraint(Sketcher.Constraint("DistanceX", 2, 1, 2, 2, 164.725))
sketch10.addConstraint(Sketcher.Constraint("DistanceX", 0, 2, -1, 1, 53.8625))
sketch10.addConstraint(Sketcher.Constraint("DistanceY", 0, 2, -1, 1, 310.8625))
pad7 = doc.addObject("PartDesign::Pad", "Pad006")
body.addObject(pad7)
pad7.Profile = sketch10
pad7.Length = 20.55
pad7.Reversed = True

doc.recompute()
